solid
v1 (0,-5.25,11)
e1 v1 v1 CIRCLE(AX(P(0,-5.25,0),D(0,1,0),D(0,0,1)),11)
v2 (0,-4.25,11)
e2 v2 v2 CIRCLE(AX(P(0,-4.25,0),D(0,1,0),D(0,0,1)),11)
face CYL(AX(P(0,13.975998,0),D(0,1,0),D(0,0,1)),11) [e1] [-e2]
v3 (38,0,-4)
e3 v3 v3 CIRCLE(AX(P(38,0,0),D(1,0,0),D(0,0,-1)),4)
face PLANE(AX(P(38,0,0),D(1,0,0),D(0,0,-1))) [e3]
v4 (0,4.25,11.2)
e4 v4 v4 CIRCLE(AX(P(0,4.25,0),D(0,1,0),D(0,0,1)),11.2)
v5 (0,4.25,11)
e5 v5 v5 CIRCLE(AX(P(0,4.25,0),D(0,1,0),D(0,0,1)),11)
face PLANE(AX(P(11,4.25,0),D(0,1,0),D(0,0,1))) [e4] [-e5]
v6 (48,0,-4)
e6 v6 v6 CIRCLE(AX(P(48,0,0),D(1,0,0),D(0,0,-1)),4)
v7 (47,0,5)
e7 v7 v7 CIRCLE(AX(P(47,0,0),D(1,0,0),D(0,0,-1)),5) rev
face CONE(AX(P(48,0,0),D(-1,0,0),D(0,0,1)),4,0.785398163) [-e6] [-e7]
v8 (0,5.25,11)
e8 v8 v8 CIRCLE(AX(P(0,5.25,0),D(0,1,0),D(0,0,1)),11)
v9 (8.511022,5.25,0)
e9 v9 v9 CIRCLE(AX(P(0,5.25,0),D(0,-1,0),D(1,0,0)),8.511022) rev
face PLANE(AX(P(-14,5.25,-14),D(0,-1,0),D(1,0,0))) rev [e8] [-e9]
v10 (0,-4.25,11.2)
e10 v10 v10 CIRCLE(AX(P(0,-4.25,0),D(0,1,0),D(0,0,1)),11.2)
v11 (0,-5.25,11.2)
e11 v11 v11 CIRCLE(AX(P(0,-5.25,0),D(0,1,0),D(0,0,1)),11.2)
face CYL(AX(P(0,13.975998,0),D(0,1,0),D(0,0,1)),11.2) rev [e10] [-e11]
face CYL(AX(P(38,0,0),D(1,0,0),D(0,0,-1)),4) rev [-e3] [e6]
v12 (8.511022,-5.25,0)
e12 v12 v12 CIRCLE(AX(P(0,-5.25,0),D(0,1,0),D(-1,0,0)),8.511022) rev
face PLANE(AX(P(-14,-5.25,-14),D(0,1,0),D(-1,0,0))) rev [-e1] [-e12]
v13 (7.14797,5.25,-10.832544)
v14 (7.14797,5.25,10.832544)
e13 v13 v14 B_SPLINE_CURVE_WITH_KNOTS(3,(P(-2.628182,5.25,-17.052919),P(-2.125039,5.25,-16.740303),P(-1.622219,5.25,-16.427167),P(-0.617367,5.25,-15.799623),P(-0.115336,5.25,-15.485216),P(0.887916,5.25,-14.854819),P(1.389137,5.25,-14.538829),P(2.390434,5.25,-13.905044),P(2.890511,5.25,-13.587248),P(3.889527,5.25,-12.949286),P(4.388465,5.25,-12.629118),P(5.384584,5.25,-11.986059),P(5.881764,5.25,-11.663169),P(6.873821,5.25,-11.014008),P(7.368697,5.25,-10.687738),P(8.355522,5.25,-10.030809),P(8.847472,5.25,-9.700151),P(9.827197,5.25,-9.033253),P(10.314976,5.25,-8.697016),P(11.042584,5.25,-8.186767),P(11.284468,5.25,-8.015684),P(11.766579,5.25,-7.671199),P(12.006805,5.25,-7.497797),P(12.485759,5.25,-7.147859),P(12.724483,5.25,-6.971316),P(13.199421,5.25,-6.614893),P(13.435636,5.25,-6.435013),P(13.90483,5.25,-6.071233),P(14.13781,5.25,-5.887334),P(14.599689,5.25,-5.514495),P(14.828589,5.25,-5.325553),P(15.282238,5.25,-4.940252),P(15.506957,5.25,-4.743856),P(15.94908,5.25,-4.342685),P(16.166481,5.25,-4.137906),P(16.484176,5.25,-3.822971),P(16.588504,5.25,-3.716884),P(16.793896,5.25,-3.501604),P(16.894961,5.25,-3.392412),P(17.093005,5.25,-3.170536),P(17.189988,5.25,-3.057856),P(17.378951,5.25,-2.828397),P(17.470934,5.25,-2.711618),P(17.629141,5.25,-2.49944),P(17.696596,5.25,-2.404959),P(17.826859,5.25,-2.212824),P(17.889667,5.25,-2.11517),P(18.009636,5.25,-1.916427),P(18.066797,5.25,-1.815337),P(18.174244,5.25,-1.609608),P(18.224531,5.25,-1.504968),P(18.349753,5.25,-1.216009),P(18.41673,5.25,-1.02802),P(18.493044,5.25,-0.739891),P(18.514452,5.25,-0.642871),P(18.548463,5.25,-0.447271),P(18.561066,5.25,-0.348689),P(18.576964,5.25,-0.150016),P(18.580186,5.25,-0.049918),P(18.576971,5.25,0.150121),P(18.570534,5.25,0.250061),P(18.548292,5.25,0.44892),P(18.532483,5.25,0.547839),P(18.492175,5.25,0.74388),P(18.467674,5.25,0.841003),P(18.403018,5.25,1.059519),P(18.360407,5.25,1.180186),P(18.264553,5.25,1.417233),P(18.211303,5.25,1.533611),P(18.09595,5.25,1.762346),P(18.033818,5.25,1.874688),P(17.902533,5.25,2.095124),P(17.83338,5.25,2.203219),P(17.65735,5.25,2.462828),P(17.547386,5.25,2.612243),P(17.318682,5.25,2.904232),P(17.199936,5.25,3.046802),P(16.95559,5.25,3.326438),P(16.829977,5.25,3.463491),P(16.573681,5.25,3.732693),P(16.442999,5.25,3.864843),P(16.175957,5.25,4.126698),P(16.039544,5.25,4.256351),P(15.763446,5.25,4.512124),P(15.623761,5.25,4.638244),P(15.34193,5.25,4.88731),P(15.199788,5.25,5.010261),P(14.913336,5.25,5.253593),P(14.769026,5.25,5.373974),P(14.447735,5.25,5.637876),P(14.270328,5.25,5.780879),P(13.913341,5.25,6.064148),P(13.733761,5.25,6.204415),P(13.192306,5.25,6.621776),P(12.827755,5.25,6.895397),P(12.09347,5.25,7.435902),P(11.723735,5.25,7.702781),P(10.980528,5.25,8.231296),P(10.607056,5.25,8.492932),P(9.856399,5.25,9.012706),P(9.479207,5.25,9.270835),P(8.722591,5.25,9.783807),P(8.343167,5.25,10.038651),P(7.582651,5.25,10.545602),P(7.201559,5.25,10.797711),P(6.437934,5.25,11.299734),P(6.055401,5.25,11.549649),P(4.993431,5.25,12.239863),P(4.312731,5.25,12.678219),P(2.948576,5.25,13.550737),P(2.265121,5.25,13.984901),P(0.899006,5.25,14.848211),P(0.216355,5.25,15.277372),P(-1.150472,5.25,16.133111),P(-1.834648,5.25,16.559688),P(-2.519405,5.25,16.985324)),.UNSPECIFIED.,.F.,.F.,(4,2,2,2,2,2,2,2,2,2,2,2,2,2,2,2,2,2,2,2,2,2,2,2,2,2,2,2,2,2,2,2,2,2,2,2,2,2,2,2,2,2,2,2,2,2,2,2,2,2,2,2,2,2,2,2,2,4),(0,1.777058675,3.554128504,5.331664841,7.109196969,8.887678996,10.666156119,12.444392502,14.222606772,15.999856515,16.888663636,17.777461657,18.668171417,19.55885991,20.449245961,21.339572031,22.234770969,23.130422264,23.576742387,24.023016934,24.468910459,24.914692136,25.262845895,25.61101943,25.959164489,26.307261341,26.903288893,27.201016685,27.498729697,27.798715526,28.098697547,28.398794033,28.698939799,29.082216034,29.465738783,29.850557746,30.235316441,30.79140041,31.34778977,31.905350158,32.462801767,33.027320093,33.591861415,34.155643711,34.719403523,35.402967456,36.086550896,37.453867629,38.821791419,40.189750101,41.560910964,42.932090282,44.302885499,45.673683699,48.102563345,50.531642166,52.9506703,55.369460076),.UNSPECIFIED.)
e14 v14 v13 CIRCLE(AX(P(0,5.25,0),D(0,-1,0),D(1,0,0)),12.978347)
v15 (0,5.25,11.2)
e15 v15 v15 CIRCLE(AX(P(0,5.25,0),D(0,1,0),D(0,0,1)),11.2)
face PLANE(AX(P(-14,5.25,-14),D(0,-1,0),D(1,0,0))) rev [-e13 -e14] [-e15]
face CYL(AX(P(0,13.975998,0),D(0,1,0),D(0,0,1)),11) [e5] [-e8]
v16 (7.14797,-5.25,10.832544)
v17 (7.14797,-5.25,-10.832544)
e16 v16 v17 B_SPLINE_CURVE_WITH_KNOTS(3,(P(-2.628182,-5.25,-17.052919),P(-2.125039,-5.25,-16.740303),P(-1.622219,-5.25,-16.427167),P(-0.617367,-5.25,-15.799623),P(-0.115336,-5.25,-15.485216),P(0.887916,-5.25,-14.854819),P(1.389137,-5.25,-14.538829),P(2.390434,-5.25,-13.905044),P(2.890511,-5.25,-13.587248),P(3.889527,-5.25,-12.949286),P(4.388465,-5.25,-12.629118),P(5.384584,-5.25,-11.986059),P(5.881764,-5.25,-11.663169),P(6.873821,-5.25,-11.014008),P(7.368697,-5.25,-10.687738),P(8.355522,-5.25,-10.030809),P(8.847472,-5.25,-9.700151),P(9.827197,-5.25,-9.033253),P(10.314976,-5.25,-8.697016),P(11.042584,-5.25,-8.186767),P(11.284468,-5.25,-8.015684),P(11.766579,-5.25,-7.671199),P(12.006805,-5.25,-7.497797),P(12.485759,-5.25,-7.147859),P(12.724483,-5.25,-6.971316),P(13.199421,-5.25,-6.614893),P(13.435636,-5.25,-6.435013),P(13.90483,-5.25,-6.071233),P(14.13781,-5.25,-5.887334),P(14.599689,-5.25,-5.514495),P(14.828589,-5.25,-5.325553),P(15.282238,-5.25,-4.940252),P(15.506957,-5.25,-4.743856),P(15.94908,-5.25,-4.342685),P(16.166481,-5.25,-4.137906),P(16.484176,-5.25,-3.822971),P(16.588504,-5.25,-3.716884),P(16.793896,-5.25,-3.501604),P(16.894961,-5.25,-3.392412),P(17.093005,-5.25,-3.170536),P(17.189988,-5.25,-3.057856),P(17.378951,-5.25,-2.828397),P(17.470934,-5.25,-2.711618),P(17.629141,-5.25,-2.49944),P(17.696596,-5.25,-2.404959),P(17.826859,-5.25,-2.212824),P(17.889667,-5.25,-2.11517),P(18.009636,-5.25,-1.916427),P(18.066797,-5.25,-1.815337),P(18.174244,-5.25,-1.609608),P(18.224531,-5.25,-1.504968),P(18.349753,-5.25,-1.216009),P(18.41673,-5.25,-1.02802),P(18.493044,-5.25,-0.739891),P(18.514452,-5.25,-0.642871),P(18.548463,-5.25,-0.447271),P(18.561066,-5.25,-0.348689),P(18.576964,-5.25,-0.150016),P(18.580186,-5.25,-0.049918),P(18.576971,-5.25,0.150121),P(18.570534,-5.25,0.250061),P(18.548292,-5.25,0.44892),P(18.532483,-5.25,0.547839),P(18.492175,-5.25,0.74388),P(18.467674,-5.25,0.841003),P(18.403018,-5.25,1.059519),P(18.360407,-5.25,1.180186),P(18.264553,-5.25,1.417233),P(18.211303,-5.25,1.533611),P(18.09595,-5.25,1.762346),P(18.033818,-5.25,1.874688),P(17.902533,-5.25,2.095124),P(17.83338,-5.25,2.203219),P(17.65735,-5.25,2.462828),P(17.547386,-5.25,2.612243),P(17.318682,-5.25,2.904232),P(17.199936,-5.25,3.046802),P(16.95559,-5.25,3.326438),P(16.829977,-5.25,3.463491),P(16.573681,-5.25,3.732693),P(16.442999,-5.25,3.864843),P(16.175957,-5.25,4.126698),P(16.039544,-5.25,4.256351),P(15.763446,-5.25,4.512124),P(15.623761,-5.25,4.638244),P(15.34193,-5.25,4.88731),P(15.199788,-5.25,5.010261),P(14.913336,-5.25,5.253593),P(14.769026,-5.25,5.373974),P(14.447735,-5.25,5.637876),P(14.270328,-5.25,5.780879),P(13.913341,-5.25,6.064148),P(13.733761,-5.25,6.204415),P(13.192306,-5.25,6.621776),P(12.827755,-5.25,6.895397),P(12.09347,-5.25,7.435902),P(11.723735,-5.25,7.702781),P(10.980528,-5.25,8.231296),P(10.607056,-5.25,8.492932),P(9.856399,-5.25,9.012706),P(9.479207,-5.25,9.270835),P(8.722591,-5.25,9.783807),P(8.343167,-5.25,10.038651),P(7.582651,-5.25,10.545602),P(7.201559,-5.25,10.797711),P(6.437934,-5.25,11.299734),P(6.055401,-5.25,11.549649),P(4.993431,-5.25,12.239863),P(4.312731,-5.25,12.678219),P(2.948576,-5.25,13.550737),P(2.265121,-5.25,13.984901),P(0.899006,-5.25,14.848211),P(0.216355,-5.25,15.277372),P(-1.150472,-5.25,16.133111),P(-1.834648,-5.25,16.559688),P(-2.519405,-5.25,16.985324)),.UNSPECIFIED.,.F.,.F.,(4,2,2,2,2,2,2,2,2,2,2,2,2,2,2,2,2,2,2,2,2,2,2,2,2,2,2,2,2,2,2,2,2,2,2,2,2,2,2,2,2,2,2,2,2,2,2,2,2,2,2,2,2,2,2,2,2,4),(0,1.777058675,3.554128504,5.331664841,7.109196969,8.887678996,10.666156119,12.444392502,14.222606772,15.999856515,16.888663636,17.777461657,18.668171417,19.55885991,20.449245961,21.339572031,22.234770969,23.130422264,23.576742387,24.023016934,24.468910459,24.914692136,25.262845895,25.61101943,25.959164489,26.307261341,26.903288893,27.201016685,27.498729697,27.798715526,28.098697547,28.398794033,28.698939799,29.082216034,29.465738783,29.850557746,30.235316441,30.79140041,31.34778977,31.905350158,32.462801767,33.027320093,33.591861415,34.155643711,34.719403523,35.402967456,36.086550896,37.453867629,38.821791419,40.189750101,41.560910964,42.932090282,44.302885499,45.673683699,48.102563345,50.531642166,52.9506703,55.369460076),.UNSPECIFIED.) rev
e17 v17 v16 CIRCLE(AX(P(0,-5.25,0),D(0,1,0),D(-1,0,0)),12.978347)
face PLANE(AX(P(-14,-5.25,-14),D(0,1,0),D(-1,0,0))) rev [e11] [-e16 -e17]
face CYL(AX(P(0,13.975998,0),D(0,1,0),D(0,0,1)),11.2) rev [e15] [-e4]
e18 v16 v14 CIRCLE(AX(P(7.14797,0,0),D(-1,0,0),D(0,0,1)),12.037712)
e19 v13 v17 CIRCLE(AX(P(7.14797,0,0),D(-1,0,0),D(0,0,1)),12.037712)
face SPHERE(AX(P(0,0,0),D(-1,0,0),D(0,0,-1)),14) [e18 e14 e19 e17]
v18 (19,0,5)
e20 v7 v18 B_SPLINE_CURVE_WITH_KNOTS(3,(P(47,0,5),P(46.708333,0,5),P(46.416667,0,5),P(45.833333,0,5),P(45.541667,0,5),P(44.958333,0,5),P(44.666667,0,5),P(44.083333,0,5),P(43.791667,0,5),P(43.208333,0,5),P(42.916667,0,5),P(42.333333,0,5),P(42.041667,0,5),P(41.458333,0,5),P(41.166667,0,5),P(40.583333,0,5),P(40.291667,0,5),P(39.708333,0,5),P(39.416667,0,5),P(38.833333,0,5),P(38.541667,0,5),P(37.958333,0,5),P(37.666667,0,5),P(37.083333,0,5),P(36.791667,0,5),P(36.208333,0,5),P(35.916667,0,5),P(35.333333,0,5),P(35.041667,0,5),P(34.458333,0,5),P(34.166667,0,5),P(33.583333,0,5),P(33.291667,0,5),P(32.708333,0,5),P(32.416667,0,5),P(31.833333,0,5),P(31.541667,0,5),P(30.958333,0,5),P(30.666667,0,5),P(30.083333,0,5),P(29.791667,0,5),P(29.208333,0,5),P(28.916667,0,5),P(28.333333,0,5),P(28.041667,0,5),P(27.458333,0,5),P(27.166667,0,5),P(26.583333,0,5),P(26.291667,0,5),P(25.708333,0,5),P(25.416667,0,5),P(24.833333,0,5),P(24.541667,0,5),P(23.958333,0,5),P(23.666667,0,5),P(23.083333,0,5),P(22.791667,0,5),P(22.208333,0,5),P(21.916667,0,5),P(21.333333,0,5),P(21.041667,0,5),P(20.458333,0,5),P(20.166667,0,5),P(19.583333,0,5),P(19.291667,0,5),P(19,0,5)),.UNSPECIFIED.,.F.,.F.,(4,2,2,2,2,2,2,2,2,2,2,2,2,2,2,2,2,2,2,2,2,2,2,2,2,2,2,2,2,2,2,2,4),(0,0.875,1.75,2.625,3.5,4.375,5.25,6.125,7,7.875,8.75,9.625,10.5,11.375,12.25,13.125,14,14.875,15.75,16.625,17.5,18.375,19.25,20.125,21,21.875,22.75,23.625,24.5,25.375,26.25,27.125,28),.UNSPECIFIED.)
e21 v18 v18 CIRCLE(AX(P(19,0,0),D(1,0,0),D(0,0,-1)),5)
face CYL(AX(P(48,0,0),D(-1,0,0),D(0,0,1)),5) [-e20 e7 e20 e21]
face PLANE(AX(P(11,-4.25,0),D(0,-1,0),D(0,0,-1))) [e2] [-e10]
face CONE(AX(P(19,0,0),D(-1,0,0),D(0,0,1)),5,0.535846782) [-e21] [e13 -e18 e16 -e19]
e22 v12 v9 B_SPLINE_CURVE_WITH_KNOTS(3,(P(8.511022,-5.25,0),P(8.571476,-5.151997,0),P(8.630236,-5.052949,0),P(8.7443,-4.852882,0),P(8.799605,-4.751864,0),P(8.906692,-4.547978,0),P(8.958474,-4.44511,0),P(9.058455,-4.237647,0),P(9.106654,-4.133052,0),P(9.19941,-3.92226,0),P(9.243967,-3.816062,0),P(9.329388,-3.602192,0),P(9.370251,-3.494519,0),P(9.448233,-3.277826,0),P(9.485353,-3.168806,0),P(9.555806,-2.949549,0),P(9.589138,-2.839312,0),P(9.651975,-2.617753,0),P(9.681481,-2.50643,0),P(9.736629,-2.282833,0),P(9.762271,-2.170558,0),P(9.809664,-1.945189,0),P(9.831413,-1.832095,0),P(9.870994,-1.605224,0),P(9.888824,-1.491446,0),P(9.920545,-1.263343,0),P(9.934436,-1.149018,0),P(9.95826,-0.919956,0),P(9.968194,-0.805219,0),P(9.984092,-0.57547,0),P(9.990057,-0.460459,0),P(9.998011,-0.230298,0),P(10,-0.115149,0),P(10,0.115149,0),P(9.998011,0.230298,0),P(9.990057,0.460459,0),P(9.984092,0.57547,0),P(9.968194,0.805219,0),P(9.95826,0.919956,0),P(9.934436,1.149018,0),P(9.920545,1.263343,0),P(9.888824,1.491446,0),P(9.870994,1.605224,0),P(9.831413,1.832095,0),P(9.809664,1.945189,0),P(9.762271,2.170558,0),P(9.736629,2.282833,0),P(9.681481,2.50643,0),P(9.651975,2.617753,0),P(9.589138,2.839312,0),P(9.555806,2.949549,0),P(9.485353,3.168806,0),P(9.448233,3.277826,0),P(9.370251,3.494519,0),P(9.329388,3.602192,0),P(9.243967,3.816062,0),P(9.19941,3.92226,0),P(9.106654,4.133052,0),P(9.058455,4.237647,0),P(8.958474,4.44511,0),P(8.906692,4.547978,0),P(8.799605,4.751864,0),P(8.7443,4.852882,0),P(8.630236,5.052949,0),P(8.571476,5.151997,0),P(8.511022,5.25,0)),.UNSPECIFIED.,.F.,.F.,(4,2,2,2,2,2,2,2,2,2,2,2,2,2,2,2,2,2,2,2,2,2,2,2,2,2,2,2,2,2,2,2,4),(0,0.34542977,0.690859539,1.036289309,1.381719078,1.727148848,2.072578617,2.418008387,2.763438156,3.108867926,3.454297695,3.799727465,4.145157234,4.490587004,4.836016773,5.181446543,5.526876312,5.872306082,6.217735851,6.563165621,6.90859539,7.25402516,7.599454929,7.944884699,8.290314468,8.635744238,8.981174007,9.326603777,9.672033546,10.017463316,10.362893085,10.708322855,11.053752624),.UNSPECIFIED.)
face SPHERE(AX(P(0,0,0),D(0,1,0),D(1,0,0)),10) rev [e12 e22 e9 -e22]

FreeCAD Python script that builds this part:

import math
import FreeCAD as App
import Part
import Sketcher


def edges_at(feature, points):
    """Names of the edges that pass closest to the given points."""
    edges = feature.Shape.Edges
    near = lambda p: min(range(len(edges)), key=lambda i: edges[i].distToShape(Part.Vertex(*p))[0])
    return sorted({f"Edge{near(p) + 1}" for p in points})

doc = App.newDocument("Part")
body = doc.addObject("PartDesign::Body", "Body")

sketch1 = body.newObject("Sketcher::SketchObject", "Sketch")
sketch1.AttachmentSupport = (doc.getObject("XZ_Plane"), [""])
sketch1.MapMode = "FlatFace"
sketch1.addGeometry([
    Part.LineSegment(App.Vector(19, -5, 0), App.Vector(7, -12, 0)),
    Part.ArcOfCircle(Part.Circle(App.Vector(0, 0, 0), App.Vector(0, 0, 1), 14), math.radians(180), math.radians(301)),
    Part.LineSegment(App.Vector(-14, 0, 0), App.Vector(19, 0, 0)),
    Part.LineSegment(App.Vector(19, 0, 0), App.Vector(19, -5, 0)),
], False)
sketch1.addConstraint([
    Sketcher.Constraint("Tangent", 0, 2, 1, 2),
    Sketcher.Constraint("Coincident", 1, 1, 2, 1),
    Sketcher.Constraint("Coincident", 2, 2, 3, 1),
    Sketcher.Constraint("Coincident", 3, 2, 0, 1),
    Sketcher.Constraint("Horizontal", 2),
    Sketcher.Constraint("Vertical", 3),
    Sketcher.Constraint("Coincident", 1, 3, -1, 1),
    Sketcher.Constraint("PointOnObject", 1, 1, -1),
    Sketcher.Constraint("Radius", 1, 14.0),
    Sketcher.Constraint("DistanceX", 2, 1, 2, 2, 33.0),
    Sketcher.Constraint("DistanceY", 3, 2, 3, 1, 5.0),
])
revolution = body.newObject("PartDesign::Revolution", "Revolution")
revolution.Profile = sketch1
revolution.ReferenceAxis = (sketch1, ["H_Axis"])
revolution.Angle = 360

sketch2 = body.newObject("Sketcher::SketchObject", "Sketch001")
sketch2.AttachmentSupport = (doc.getObject("XY_Plane"), [""])
sketch2.MapMode = "FlatFace"
sketch2.addGeometry([
    Part.LineSegment(App.Vector(-14, 14, 0), App.Vector(-14, 5, 0)),
    Part.LineSegment(App.Vector(-14, 5, 0), App.Vector(19, 5, 0)),
    Part.LineSegment(App.Vector(19, 5, 0), App.Vector(19, 14, 0)),
    Part.LineSegment(App.Vector(19, 14, 0), App.Vector(-14, 14, 0)),
    Part.LineSegment(App.Vector(-14, -5, 0), App.Vector(-14, -14, 0)),
    Part.LineSegment(App.Vector(-14, -14, 0), App.Vector(19, -14, 0)),
    Part.LineSegment(App.Vector(19, -14, 0), App.Vector(19, -5, 0)),
    Part.LineSegment(App.Vector(19, -5, 0), App.Vector(-14, -5, 0)),
], False)
sketch2.addConstraint([
    Sketcher.Constraint("Coincident", 0, 2, 1, 1),
    Sketcher.Constraint("Coincident", 1, 2, 2, 1),
    Sketcher.Constraint("Coincident", 2, 2, 3, 1),
    Sketcher.Constraint("Coincident", 3, 2, 0, 1),
    Sketcher.Constraint("Coincident", 4, 2, 5, 1),
    Sketcher.Constraint("Coincident", 5, 2, 6, 1),
    Sketcher.Constraint("Coincident", 6, 2, 7, 1),
    Sketcher.Constraint("Coincident", 7, 2, 4, 1),
    Sketcher.Constraint("Vertical", 0),
    Sketcher.Constraint("Horizontal", 1),
    Sketcher.Constraint("Vertical", 2),
    Sketcher.Constraint("Horizontal", 3),
    Sketcher.Constraint("Vertical", 4),
    Sketcher.Constraint("Horizontal", 5),
    Sketcher.Constraint("Vertical", 6),
    Sketcher.Constraint("Horizontal", 7),
    Sketcher.Constraint("Symmetric", 3, 2, 4, 2, -1),
    Sketcher.Constraint("Symmetric", 1, 2, 6, 2, -1),
    Sketcher.Constraint("DistanceX", 1, 1, 1, 2, 33.0),
    Sketcher.Constraint("DistanceX", 0, 2, -1, 1, 14.0),
    Sketcher.Constraint("DistanceY", -1, 1, 2, 2, 14.0),
    Sketcher.Constraint("DistanceY", 0, 2, 0, 1, 8.75),
])
pocket1 = body.newObject("PartDesign::Pocket", "Pocket")
pocket1.Profile = sketch2
pocket1.Type = "ThroughAll"
pocket1.Midplane = True

sketch3 = body.newObject("Sketcher::SketchObject", "Sketch002")
sketch3.AttachmentSupport = (doc.getObject("XY_Plane"), [""])
sketch3.MapMode = "FlatFace"
sketch3.addGeometry([
    Part.LineSegment(App.Vector(0, 10, 0), App.Vector(0, -10, 0)),
    Part.ArcOfCircle(Part.Circle(App.Vector(0, 0, 0), App.Vector(0, 0, 1), 10), math.radians(-90), math.radians(90)),
    Part.LineSegment(App.Vector(11, 5.25, 0), App.Vector(11, 4.25, 0)),
    Part.LineSegment(App.Vector(11, 4.25, 0), App.Vector(11.2, 4.25, 0)),
    Part.LineSegment(App.Vector(11.2, 4.25, 0), App.Vector(11.2, 5.25, 0)),
    Part.LineSegment(App.Vector(11.2, 5.25, 0), App.Vector(11, 5.25, 0)),
    Part.LineSegment(App.Vector(11, -4.25, 0), App.Vector(11, -5.25, 0)),
    Part.LineSegment(App.Vector(11, -5.25, 0), App.Vector(11.2, -5.25, 0)),
    Part.LineSegment(App.Vector(11.2, -5.25, 0), App.Vector(11.2, -4.25, 0)),
    Part.LineSegment(App.Vector(11.2, -4.25, 0), App.Vector(11, -4.25, 0)),
], False)
sketch3.addConstraint([
    Sketcher.Constraint("Coincident", 0, 1, 1, 2),
    Sketcher.Constraint("Coincident", 1, 1, 0, 2),
    Sketcher.Constraint("Coincident", 2, 2, 3, 1),
    Sketcher.Constraint("Coincident", 3, 2, 4, 1),
    Sketcher.Constraint("Coincident", 4, 2, 5, 1),
    Sketcher.Constraint("Coincident", 5, 2, 2, 1),
    Sketcher.Constraint("Coincident", 6, 2, 7, 1),
    Sketcher.Constraint("Coincident", 7, 2, 8, 1),
    Sketcher.Constraint("Coincident", 8, 2, 9, 1),
    Sketcher.Constraint("Coincident", 9, 2, 6, 1),
    Sketcher.Constraint("Vertical", 0),
    Sketcher.Constraint("Vertical", 2),
    Sketcher.Constraint("Horizontal", 3),
    Sketcher.Constraint("Vertical", 4),
    Sketcher.Constraint("Horizontal", 5),
    Sketcher.Constraint("Vertical", 6),
    Sketcher.Constraint("Horizontal", 7),
    Sketcher.Constraint("Vertical", 8),
    Sketcher.Constraint("Horizontal", 9),
    Sketcher.Constraint("Coincident", 1, 3, -1, 1),
    Sketcher.Constraint("Symmetric", 5, 2, 6, 2, -1),
    Sketcher.Constraint("Symmetric", 3, 2, 8, 2, -1),
    Sketcher.Constraint("PointOnObject", 0, 1, -2),
    Sketcher.Constraint("Radius", 1, 10.0),
    Sketcher.Constraint("DistanceY", 2, 2, 2, 1, 1.0),
    Sketcher.Constraint("DistanceX", 3, 1, 3, 2, 0.2),
    Sketcher.Constraint("DistanceX", -1, 1, 2, 2, 11.0),
    Sketcher.Constraint("DistanceY", 6, 2, 2, 2, 9.5),
])
groove = body.newObject("PartDesign::Groove", "Groove")
groove.Profile = sketch3
groove.ReferenceAxis = (sketch3, ["V_Axis"])
groove.Angle = 360

sketch4 = body.newObject("Sketcher::SketchObject", "Sketch003")
sketch4.AttachmentSupport = (doc.getObject("YZ_Plane"), [""])
sketch4.MapMode = "FlatFace"
sketch4.AttachmentOffset = App.Placement(App.Vector(0, 0, 19), App.Rotation())
sketch4.addGeometry(Part.Circle(App.Vector(0, 0, 0), App.Vector(0, 0, 1), 5), False)
sketch4.addConstraint([
    Sketcher.Constraint("Coincident", 0, 3, -1, 1),
    Sketcher.Constraint("Diameter", 0, 10.0),
])
pad1 = body.newObject("PartDesign::Pad", "Pad")
pad1.Profile = sketch4
pad1.Length = 29
doc.recompute()

chamfer = body.newObject("PartDesign::Chamfer", "Chamfer")
chamfer.Base = (pad1, edges_at(pad1, [(48, 0, -5)]))
chamfer.Size = 1

sketch5 = body.newObject("Sketcher::SketchObject", "Sketch004")
sketch5.AttachmentSupport = (doc.getObject("YZ_Plane"), [""])
sketch5.MapMode = "FlatFace"
sketch5.AttachmentOffset = App.Placement(App.Vector(0, 0, 48), App.Rotation())
sketch5.addGeometry(Part.Circle(App.Vector(0, 0, 0), App.Vector(0, 0, 1), 4), False)
sketch5.addConstraint([
    Sketcher.Constraint("Coincident", 0, 3, -1, 1),
    Sketcher.Constraint("Diameter", 0, 8.0),
])
pocket2 = body.newObject("PartDesign::Pocket", "Pocket001")
pocket2.Profile = sketch5
pocket2.Length = 10

doc.recompute()
